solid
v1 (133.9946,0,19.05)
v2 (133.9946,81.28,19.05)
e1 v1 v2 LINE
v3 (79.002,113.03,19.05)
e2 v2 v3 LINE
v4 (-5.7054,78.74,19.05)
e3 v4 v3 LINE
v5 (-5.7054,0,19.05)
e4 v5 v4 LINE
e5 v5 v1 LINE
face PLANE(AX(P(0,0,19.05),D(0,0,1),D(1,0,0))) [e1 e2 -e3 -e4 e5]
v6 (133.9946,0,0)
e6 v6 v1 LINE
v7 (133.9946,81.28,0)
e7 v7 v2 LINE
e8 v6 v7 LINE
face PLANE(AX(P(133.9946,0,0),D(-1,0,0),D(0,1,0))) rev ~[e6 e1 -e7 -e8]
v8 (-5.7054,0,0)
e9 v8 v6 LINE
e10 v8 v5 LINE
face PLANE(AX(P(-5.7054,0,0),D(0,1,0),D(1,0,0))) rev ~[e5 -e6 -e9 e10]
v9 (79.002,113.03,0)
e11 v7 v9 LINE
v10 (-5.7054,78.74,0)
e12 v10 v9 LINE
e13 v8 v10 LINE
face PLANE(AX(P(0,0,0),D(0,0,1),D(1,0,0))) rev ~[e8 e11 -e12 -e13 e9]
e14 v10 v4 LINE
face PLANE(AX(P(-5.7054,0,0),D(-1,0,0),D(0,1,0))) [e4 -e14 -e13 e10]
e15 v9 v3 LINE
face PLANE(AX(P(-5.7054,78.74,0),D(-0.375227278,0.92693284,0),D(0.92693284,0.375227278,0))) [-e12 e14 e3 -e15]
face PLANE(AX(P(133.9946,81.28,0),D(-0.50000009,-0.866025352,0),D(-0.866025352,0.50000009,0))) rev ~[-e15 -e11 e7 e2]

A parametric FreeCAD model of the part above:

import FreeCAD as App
import Part
import Sketcher
from FreeCAD import Vector
Q = App.Units.Quantity


def add_polygon(sketch, points):
    """Adds a closed chain of lines whose ends are joined by coincident constraints."""
    first, n = sketch.GeometryCount, len(points)
    for a, b in zip(points, points[1:] + points[:1]):
        sketch.addGeometry(Part.LineSegment(App.Vector(*a, 0), App.Vector(*b, 0)), False)
    for i in range(n):
        sketch.addConstraint(Sketcher.Constraint("Coincident", first + i, 2, first + (i + 1) % n, 1))

doc = App.newDocument("Part")
body = doc.addObject("PartDesign::Body", "Body")

# Sketch on XY plane
sketch1 = doc.addObject("Sketcher::SketchObject", "Sketch")
body.addObject(sketch1)
sketch1.AttachmentSupport = (doc.XY_Plane, [""])
sketch1.MapMode = "FlatFace"
add_polygon(sketch1, [(-6, 79), (-6, 0), (134, 0), (134, 81), (79, 113)])  # lines 0-4
sketch1.addConstraint(Sketcher.Constraint("Vertical", 0))
sketch1.addConstraint(Sketcher.Constraint("Horizontal", 1))
sketch1.addConstraint(Sketcher.Constraint("Vertical", 2))
sketch1.addConstraint(Sketcher.Constraint("PointOnObject", 0, 2, -1))
sketch1.addConstraint(Sketcher.Constraint("DistanceX", 1, 1, 1, 2, Q("5.5 in")))
sketch1.addConstraint(Sketcher.Constraint("DistanceY", 0, 2, 0, 1, Q("3.1 in")))
sketch1.addConstraint(Sketcher.Constraint("DistanceY", 2, 1, 2, 2, Q("3.2 in")))
sketch1.addConstraint(Sketcher.Constraint("Distance", 3, Q("2.5 in")))
sketch1.addConstraint(Sketcher.Constraint("Angle", 3, Q("150 deg")))
sketch1.addConstraint(Sketcher.Constraint("DistanceX", 0, 2, -1, 1, Q("5.7054 mm")))
pad1 = doc.addObject("PartDesign::Pad", "Pad")
body.addObject(pad1)
pad1.Profile = sketch1
pad1.Length = Q("0.75 in")

doc.recompute()
